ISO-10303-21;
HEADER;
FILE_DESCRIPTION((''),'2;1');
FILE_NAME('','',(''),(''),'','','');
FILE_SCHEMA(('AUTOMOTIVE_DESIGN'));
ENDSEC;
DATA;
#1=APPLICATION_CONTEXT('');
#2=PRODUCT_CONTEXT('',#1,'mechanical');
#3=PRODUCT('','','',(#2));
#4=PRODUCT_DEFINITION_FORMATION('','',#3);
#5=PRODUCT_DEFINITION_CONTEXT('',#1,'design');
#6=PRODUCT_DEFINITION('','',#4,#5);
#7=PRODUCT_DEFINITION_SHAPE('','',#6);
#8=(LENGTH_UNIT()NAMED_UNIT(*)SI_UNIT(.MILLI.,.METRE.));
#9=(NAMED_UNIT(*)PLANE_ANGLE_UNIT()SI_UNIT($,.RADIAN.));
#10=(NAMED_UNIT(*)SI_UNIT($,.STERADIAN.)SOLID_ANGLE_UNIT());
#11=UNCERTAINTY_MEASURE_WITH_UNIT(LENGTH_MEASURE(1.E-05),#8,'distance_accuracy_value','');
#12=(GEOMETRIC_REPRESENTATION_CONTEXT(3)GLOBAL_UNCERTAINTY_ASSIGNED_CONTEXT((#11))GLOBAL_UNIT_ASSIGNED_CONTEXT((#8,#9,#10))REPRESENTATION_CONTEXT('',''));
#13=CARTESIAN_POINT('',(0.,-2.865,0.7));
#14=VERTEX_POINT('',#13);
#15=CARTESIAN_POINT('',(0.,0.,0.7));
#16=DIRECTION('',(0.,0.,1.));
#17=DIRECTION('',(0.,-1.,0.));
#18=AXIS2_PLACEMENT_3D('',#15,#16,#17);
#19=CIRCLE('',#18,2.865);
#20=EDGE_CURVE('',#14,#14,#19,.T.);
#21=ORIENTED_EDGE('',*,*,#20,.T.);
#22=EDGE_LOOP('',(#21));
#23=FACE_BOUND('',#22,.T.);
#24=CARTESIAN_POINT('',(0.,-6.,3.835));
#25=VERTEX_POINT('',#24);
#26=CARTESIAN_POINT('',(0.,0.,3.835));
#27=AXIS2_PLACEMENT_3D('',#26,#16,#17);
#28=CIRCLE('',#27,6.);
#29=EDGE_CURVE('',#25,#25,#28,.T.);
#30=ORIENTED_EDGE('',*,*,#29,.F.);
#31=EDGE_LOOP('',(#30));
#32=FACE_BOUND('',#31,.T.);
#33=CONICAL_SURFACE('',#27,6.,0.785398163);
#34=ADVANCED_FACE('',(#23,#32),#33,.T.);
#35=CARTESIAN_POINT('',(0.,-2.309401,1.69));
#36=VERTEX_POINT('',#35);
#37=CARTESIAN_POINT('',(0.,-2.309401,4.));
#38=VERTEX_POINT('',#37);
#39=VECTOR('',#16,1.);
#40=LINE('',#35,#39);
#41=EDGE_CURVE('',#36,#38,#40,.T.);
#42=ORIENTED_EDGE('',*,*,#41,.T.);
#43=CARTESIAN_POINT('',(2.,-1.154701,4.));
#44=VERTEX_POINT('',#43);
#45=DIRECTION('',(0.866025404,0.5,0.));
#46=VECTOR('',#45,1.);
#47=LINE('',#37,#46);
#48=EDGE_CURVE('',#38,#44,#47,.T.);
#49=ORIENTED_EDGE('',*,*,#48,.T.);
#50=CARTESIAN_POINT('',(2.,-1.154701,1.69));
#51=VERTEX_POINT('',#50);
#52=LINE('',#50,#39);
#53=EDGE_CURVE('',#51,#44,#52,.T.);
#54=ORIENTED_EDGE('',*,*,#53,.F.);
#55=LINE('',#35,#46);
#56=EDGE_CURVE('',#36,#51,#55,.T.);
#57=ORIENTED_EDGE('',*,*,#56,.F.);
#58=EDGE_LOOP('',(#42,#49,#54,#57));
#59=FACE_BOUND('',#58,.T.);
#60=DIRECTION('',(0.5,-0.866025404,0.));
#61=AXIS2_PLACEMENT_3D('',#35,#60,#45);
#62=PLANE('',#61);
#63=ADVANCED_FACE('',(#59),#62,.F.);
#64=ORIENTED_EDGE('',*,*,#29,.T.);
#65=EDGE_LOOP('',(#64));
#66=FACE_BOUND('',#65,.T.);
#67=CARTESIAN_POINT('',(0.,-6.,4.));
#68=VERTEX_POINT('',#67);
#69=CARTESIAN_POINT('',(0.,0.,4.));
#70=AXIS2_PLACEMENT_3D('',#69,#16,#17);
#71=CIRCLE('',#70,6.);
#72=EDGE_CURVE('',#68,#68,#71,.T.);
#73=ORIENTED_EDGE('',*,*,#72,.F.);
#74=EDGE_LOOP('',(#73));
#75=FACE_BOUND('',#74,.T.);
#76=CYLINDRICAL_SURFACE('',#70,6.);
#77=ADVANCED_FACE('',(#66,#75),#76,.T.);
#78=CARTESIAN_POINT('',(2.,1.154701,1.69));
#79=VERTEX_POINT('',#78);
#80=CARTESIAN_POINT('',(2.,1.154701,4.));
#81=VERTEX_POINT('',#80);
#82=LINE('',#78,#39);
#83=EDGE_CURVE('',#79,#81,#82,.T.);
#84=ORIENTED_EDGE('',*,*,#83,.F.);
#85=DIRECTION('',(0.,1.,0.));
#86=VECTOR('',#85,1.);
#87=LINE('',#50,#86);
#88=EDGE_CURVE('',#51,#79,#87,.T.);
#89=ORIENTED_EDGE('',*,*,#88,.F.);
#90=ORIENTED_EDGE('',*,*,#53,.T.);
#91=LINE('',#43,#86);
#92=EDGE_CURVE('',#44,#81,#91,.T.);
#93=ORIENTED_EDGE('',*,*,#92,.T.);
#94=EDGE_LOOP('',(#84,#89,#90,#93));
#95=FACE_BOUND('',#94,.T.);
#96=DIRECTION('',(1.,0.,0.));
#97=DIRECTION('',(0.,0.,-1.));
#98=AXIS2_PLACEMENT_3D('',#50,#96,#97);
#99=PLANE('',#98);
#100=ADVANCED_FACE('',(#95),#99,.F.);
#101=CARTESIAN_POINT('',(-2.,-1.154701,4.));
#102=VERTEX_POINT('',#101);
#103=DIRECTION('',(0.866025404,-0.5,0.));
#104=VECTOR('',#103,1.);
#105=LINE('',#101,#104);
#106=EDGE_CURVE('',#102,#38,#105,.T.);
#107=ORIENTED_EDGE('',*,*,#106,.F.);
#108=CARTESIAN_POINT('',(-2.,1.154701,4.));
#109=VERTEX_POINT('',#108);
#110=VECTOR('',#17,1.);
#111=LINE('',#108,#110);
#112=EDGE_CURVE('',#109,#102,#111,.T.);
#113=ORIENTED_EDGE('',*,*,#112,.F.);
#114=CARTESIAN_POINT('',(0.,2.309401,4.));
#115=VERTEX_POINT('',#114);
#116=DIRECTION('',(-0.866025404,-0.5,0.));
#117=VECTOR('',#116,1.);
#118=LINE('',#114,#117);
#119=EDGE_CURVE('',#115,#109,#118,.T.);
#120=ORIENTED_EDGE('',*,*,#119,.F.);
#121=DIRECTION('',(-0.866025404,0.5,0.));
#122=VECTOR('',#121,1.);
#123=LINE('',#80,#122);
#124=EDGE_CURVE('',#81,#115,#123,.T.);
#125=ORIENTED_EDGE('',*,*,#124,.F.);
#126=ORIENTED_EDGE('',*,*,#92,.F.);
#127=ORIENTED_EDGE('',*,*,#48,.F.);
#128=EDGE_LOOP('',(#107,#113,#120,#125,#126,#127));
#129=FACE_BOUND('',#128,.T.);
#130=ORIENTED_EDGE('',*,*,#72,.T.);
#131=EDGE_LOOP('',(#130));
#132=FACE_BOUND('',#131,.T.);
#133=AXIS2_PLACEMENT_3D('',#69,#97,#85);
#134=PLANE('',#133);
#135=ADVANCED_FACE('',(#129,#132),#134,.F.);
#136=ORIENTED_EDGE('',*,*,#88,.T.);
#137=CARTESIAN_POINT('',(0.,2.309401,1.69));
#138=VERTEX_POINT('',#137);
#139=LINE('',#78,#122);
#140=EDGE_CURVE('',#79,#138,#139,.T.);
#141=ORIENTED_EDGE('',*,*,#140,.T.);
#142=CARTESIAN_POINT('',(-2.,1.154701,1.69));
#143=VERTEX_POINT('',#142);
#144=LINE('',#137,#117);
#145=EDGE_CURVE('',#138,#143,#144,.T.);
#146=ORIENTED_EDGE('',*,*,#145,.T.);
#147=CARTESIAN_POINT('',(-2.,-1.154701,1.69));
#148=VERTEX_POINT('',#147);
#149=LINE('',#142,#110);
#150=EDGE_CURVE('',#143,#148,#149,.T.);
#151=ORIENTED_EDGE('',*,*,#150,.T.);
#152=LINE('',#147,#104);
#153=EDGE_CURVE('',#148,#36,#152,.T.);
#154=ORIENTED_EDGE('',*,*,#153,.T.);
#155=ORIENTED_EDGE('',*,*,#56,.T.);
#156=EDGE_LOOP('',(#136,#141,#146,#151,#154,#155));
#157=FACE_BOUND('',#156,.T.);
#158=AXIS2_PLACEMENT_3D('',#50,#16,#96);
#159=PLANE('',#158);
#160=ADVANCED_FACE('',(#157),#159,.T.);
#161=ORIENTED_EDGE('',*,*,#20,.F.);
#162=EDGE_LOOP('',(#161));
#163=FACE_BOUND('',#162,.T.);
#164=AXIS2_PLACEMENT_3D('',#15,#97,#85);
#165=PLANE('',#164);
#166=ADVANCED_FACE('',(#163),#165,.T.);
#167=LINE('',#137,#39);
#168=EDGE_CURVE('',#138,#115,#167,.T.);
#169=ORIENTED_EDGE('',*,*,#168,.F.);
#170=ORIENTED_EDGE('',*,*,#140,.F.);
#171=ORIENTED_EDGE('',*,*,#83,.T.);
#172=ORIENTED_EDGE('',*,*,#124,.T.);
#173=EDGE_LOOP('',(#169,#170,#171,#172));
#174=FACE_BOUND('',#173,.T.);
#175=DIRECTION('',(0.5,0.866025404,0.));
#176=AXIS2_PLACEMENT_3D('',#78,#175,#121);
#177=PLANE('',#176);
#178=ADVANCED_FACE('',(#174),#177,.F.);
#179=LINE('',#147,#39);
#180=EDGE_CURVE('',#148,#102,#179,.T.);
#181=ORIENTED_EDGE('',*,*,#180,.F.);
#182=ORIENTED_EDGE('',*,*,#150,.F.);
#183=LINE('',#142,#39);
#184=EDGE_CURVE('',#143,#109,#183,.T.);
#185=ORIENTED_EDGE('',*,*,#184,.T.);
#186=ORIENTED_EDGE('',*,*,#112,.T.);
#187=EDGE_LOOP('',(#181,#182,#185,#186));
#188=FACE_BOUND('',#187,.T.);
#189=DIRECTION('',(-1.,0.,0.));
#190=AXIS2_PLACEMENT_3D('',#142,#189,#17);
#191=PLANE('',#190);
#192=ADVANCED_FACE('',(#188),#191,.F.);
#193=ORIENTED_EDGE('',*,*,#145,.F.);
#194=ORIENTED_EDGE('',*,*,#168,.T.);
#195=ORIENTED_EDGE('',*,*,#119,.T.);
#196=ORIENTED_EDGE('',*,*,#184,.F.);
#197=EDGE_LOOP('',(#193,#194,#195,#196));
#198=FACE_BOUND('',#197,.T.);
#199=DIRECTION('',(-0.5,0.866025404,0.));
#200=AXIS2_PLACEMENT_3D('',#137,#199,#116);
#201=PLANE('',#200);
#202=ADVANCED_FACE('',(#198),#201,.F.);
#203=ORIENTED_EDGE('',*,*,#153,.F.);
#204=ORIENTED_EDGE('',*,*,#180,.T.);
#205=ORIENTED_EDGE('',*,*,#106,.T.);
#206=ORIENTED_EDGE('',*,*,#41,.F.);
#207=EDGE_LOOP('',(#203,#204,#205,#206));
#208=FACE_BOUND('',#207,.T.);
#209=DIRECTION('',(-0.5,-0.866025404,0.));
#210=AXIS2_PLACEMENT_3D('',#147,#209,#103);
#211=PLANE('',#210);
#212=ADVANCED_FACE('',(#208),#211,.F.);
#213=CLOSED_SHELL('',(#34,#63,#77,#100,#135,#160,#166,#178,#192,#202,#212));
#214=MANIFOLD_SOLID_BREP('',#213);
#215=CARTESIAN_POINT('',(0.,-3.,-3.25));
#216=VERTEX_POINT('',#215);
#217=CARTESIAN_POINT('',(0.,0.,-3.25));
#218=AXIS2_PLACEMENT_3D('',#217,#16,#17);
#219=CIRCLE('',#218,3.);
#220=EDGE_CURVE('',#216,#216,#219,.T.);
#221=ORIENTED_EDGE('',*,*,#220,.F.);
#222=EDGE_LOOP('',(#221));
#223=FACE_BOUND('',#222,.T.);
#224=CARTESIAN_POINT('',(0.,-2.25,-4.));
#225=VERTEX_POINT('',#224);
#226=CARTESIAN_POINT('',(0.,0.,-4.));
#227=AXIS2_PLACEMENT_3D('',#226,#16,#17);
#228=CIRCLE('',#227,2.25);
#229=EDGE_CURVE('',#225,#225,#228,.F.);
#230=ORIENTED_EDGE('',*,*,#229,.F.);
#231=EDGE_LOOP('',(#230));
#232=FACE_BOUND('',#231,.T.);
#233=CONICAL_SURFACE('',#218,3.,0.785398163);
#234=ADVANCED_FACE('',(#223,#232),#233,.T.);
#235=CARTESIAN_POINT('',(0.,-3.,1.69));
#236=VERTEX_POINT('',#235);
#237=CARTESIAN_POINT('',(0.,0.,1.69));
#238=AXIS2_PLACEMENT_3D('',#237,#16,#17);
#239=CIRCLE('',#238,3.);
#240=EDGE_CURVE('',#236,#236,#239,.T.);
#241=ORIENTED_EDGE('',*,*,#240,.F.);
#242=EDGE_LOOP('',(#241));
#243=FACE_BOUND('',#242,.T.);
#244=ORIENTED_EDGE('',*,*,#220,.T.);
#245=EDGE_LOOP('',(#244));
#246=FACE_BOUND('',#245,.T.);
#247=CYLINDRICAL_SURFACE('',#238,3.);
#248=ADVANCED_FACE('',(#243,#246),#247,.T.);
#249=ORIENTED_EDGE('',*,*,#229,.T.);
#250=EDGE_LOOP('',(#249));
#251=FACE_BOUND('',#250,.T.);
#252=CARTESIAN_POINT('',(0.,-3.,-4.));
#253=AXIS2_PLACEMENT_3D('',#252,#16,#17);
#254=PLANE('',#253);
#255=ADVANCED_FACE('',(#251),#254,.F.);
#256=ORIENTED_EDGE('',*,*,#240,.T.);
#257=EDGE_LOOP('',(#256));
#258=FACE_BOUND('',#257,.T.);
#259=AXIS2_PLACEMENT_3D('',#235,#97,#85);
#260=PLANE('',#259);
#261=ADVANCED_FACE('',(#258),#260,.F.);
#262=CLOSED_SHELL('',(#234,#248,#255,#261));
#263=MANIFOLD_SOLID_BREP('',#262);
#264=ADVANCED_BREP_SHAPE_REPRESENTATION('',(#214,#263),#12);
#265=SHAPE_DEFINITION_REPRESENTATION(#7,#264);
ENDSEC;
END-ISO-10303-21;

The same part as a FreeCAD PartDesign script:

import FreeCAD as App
import Part
import Sketcher
Q = App.Units.Quantity


def edges_at(feature, points):
    """Names of the edges that pass closest to the given points."""
    edges = feature.Shape.Edges
    near = lambda p: min(range(len(edges)), key=lambda i: edges[i].distToShape(Part.Vertex(*p))[0])
    return sorted({f"Edge{near(p) + 1}" for p in points})


def add_polygon(sketch, points):
    """Adds a closed chain of lines whose ends are joined by coincident constraints."""
    first, n = sketch.GeometryCount, len(points)
    for a, b in zip(points, points[1:] + points[:1]):
        sketch.addGeometry(Part.LineSegment(App.Vector(*a, 0), App.Vector(*b, 0)), False)
    for i in range(n):
        sketch.addConstraint(Sketcher.Constraint("Coincident", first + i, 2, first + (i + 1) % n, 1))

doc = App.newDocument("Part")
body = doc.addObject("PartDesign::Body", "Body")

# Sketch on YZ plane
sketch1 = body.newObject("Sketcher::SketchObject", "Sketch")
sketch1.AttachmentSupport = (doc.getObject("YZ_Plane"), [""])
sketch1.MapMode = "FlatFace"
add_polygon(sketch1, [(3, -4), (3, 1.69), (0, 1.69), (0, -4)])  # lines 0-3
sketch1.addConstraint(Sketcher.Constraint("Vertical", 0))
sketch1.addConstraint(Sketcher.Constraint("Horizontal", 1))
sketch1.addConstraint(Sketcher.Constraint("Vertical", 2))
sketch1.addConstraint(Sketcher.Constraint("Horizontal", 3))
sketch1.addConstraint(Sketcher.Constraint("PointOnObject", 1, 2, -2))
sketch1.addConstraint(Sketcher.Constraint("DistanceX", 1, 2, 1, 1, 3.0))
sketch1.addConstraint(Sketcher.Constraint("DistanceY", 2, 2, -1, 1, 4.0))
sketch1.addConstraint(Sketcher.Constraint("DistanceY", 0, 1, 0, 2, 5.69))
revolution = body.newObject("PartDesign::Revolution", "Revolution")
revolution.Profile = sketch1
revolution.ReferenceAxis = (sketch1, ["V_Axis"])
revolution.Angle = 360
doc.recompute()

chamfer = body.newObject("PartDesign::Chamfer", "Chamfer")
chamfer.Base = (revolution, edges_at(revolution, [(0, 3, -4)]))
chamfer.Size = 0.75
body2 = doc.addObject("PartDesign::Body", "Body001")

# Sketch on YZ plane
sketch2 = body2.newObject("Sketcher::SketchObject", "Sketch001")
sketch2.AttachmentSupport = (doc.getObject("YZ_Plane001"), [""])
sketch2.MapMode = "FlatFace"
add_polygon(sketch2, [(6, 3.835), (6, 4), (0, 4), (0, 0.7), (2.865, 0.7)])  # lines 0-4
sketch2.addConstraint(Sketcher.Constraint("Vertical", 0))
sketch2.addConstraint(Sketcher.Constraint("Horizontal", 1))
sketch2.addConstraint(Sketcher.Constraint("Vertical", 2))
sketch2.addConstraint(Sketcher.Constraint("Horizontal", 3))
sketch2.addConstraint(Sketcher.Constraint("PointOnObject", 1, 2, -2))
sketch2.addConstraint(Sketcher.Constraint("DistanceX", 1, 2, 1, 1, 6.0))
sketch2.addConstraint(Sketcher.Constraint("Angle", 4, Q("45 deg")))
sketch2.addConstraint(Sketcher.Constraint("DistanceY", 2, 2, 2, 1, 3.3))
sketch2.addConstraint(Sketcher.Constraint("DistanceY", -1, 1, 0, 2, 4.0))
sketch2.addConstraint(Sketcher.Constraint("DistanceX", 3, 1, 3, 2, 2.865))
revolution2 = body2.newObject("PartDesign::Revolution", "Revolution001")
revolution2.Profile = sketch2
revolution2.ReferenceAxis = (sketch2, ["V_Axis"])
revolution2.Angle = 360

# Sketch on XY plane
sketch3 = body2.newObject("Sketcher::SketchObject", "Sketch002")
sketch3.AttachmentSupport = (doc.getObject("XY_Plane001"), [""])
sketch3.MapMode = "FlatFace"
sketch3.AttachmentOffset = App.Placement(App.Vector(0, 0, 4), App.Rotation())
add_polygon(sketch3, [(2, -1.154701), (2, 1.154701), (0, 2.309401), (-2, 1.154701), (-2, -1.154701), (0, -2.309401)])  # lines 0-5
sketch3.addConstraint(Sketcher.Constraint("Vertical", 0))
sketch3.addConstraint(Sketcher.Constraint("Vertical", 3))
sketch3.addConstraint(Sketcher.Constraint("Symmetric", 0, 2, 3, 2, -1, 1))
sketch3.addConstraint(Sketcher.Constraint("Symmetric", 1, 2, 4, 2, -1, 1))
sketch3.addConstraint(Sketcher.Constraint("PointOnObject", 1, 2, -2))
sketch3.addConstraint(Sketcher.Constraint("Parallel", 2, 5))
sketch3.addConstraint(Sketcher.Constraint("Horizontal", 0, 2, 2, 2))
sketch3.addConstraint(Sketcher.Constraint("Angle", 1, Q("150 deg")))
sketch3.addConstraint(Sketcher.Constraint("DistanceX", -1, 1, 0, 2, 2.0))
sketch3.addConstraint(Sketcher.Constraint("DistanceY", 0, 1, 0, 2, 2.309401))
pocket1 = body2.newObject("PartDesign::Pocket", "Pocket")
pocket1.Profile = sketch3
pocket1.Length = 2.31

doc.recompute()
